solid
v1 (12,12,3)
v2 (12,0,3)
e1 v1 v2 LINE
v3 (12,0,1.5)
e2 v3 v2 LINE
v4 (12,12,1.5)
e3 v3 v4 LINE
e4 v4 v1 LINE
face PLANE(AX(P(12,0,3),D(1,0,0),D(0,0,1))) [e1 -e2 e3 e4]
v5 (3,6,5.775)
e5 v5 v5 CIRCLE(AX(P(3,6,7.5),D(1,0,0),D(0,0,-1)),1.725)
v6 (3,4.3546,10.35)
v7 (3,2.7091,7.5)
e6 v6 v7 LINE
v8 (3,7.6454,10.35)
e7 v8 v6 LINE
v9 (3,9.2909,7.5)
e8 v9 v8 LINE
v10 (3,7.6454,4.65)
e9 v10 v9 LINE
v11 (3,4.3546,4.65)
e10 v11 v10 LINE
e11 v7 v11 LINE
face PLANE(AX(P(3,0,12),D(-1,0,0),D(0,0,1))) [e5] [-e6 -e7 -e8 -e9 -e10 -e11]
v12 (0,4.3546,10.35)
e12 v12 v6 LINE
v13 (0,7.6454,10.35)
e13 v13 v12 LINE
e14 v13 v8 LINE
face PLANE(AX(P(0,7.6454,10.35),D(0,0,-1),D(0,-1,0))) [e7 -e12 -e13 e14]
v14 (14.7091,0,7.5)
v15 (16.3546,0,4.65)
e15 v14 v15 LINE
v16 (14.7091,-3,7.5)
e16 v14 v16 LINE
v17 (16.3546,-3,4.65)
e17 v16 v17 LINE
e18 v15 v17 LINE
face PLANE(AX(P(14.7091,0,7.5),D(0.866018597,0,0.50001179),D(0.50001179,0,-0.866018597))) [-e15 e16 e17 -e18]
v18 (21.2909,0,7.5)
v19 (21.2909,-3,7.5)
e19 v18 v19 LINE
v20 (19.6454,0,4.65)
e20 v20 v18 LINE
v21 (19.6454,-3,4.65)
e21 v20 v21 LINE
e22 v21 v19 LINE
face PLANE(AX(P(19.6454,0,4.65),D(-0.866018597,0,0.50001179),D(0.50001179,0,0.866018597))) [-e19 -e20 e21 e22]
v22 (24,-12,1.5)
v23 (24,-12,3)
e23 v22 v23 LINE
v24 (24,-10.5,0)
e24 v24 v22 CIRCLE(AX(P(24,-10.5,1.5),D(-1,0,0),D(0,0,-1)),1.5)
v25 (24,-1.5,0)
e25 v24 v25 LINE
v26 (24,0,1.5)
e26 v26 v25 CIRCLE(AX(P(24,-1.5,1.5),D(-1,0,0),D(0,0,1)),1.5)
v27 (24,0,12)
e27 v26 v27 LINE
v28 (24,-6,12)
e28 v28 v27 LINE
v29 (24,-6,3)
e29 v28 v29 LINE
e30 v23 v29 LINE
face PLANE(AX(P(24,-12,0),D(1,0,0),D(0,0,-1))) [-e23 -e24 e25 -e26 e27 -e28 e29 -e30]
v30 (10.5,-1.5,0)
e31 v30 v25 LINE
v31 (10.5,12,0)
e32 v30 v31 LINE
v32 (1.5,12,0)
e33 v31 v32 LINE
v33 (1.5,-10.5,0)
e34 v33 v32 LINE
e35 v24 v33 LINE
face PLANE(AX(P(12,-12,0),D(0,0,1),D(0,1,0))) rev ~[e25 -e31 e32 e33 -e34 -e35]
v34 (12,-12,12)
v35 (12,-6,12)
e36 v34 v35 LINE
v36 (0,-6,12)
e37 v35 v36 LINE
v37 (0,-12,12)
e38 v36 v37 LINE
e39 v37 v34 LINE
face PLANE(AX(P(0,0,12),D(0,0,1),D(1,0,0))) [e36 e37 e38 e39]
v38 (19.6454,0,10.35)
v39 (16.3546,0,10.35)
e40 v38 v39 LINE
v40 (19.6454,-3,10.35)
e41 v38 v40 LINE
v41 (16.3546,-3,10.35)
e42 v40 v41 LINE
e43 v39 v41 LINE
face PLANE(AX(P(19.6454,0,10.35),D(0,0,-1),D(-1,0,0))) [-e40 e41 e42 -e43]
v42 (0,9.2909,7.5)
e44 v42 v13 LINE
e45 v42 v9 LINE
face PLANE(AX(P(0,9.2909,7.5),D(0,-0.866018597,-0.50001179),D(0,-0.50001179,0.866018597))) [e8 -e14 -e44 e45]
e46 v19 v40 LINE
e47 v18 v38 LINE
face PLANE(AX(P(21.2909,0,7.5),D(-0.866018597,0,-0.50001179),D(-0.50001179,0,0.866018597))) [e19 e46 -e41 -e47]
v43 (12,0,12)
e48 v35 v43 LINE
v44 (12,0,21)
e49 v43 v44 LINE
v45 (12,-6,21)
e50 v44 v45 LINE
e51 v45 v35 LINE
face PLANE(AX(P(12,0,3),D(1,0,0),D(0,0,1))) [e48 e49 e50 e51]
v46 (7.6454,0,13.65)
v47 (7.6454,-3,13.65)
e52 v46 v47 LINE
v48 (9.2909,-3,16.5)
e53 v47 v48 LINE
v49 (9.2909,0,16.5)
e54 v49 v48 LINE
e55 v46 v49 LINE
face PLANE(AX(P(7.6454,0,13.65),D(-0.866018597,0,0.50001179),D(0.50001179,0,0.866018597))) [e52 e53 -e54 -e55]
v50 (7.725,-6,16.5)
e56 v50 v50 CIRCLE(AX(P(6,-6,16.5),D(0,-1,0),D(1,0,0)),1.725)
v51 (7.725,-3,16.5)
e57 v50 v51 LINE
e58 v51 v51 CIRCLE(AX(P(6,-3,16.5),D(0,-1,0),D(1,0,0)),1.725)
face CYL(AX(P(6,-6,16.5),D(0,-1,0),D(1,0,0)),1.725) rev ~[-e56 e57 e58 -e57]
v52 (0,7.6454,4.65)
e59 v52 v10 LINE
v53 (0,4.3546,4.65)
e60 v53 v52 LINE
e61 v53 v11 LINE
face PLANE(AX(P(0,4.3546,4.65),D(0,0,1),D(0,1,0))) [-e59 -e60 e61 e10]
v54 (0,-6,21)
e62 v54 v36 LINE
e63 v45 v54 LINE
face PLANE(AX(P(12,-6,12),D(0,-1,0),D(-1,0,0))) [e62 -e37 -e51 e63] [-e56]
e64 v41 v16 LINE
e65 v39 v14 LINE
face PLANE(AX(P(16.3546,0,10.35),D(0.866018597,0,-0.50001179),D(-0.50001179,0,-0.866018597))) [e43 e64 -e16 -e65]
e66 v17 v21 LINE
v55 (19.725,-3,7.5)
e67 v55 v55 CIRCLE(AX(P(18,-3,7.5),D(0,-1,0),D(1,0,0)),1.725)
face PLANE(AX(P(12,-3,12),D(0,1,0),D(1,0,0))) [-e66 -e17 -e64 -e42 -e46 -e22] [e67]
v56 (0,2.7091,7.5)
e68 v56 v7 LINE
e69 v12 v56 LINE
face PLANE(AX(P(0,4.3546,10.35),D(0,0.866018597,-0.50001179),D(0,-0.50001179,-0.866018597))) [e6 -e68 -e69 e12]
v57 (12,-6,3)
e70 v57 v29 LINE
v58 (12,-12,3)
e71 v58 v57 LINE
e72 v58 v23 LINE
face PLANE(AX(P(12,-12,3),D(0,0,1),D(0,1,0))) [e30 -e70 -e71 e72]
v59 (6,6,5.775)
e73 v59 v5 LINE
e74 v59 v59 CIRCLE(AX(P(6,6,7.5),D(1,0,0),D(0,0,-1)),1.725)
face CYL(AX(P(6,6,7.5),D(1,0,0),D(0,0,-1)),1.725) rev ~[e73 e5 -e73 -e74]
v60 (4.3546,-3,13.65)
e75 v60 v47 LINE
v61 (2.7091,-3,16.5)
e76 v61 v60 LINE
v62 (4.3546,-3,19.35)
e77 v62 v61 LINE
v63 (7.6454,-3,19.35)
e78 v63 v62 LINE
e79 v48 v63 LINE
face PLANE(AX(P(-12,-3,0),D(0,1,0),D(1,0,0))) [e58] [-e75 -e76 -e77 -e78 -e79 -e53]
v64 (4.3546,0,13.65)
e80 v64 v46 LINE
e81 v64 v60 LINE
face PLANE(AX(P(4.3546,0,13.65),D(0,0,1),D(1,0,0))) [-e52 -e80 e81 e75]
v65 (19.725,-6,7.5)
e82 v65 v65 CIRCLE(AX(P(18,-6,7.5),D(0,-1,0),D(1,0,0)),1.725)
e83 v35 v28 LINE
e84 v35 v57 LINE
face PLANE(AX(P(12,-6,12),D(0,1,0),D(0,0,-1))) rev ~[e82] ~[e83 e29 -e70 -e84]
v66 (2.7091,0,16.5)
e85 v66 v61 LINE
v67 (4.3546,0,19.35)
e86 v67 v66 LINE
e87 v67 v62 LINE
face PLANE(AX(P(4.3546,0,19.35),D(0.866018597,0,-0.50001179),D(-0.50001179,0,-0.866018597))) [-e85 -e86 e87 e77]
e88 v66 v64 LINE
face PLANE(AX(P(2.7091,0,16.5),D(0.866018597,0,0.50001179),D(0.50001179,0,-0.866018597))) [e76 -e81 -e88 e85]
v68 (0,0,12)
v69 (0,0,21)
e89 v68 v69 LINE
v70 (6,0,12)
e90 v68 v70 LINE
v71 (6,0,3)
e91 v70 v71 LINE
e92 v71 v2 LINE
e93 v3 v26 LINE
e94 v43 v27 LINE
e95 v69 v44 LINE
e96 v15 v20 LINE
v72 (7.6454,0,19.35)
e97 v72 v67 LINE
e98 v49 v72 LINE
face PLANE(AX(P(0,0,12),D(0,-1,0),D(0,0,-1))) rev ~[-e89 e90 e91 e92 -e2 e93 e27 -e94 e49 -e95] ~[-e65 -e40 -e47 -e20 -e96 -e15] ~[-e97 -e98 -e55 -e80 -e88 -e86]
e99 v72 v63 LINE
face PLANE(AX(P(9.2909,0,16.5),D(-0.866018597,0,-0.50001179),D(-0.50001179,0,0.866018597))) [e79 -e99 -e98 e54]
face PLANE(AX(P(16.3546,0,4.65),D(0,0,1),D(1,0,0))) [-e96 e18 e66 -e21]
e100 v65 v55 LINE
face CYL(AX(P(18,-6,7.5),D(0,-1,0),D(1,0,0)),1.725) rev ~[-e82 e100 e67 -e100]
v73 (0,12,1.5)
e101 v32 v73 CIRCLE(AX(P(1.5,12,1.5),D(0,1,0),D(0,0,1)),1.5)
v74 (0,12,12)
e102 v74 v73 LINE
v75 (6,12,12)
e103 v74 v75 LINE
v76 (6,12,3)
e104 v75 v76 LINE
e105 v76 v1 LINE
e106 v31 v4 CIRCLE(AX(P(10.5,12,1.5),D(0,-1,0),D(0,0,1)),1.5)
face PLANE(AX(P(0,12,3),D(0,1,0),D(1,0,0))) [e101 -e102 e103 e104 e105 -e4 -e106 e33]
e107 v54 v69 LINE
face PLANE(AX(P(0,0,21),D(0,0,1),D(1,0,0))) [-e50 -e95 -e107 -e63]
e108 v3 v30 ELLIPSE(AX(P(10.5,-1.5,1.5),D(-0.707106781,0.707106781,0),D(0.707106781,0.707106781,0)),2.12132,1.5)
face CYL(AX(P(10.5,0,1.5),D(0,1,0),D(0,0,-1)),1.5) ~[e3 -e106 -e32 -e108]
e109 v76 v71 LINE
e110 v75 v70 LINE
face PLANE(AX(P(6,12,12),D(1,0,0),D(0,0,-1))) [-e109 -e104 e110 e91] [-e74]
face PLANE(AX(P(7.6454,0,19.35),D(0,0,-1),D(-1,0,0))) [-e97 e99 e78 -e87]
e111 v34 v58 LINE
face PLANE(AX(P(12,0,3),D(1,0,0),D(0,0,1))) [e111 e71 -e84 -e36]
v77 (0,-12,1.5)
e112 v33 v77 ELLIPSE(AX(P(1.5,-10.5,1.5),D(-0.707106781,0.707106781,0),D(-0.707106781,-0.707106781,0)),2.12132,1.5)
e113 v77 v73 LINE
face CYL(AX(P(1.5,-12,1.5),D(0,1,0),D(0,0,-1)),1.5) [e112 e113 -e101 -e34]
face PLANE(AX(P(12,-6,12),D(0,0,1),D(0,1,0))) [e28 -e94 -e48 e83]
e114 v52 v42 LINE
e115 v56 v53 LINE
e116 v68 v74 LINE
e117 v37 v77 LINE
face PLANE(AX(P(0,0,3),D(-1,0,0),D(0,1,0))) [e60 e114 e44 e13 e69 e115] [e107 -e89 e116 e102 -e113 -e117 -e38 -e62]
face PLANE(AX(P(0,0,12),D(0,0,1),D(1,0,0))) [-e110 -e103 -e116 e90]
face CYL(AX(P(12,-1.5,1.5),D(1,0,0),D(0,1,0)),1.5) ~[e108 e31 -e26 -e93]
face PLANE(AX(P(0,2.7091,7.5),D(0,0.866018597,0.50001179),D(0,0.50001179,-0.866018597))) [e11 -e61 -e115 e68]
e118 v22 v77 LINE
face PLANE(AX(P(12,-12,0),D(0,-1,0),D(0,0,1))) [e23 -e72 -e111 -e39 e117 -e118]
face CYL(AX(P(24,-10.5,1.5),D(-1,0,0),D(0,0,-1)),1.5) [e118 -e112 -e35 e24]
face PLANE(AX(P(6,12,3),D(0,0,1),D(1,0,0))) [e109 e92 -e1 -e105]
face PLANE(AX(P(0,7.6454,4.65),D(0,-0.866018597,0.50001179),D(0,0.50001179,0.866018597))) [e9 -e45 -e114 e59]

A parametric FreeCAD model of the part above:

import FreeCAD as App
import Part
import Sketcher
Q = App.Units.Quantity


def edges_at(feature, points):
    """Names of the edges that pass closest to the given points."""
    edges = feature.Shape.Edges
    near = lambda p: min(range(len(edges)), key=lambda i: edges[i].distToShape(Part.Vertex(*p))[0])
    return sorted({f"Edge{near(p) + 1}" for p in points})


def add_polygon(sketch, points):
    """Adds a closed chain of lines whose ends are joined by coincident constraints."""
    first, n = sketch.GeometryCount, len(points)
    for a, b in zip(points, points[1:] + points[:1]):
        sketch.addGeometry(Part.LineSegment(App.Vector(*a, 0), App.Vector(*b, 0)), False)
    for i in range(n):
        sketch.addConstraint(Sketcher.Constraint("Coincident", first + i, 2, first + (i + 1) % n, 1))

doc = App.newDocument("Part")
body = doc.addObject("PartDesign::Body", "Body")

sketch1 = doc.addObject("Sketcher::SketchObject", "Sketch")
body.addObject(sketch1)
sketch1.AttachmentSupport = (doc.XY_Plane, [""])
sketch1.MapMode = "FlatFace"
add_polygon(sketch1, [(0, 12), (0, 0), (-12, 0), (-12, -12), (0, -12), (0, -24), (12, -24), (12, -12), (24, -12), (24, 0), (12, 0), (12, 12)])
sketch1.addConstraint([
    Sketcher.Constraint("Vertical", 0),
    Sketcher.Constraint("Horizontal", 1),
    Sketcher.Constraint("Vertical", 2),
    Sketcher.Constraint("Horizontal", 3),
    Sketcher.Constraint("Vertical", 4),
    Sketcher.Constraint("Horizontal", 5),
    Sketcher.Constraint("Vertical", 6),
    Sketcher.Constraint("Horizontal", 7),
    Sketcher.Constraint("Vertical", 8),
    Sketcher.Constraint("Horizontal", 9),
    Sketcher.Constraint("Vertical", 10),
    Sketcher.Constraint("Horizontal", 11),
    Sketcher.Constraint("Coincident", 0, 2, -1, 1),
    Sketcher.Constraint("Symmetric", 1, 2, 9, 2, -1, 1),
    Sketcher.Constraint("Symmetric", 3, 2, 11, 2, -1, 1),
    Sketcher.Constraint("Symmetric", 2, 2, 6, 2, -2),
    Sketcher.Constraint("Equal", 5, 7),
    Sketcher.Constraint("Equal", 11, 0),
    Sketcher.Constraint("Equal", 2, 4),
    Sketcher.Constraint("DistanceX", 1, 2, 1, 1, 12.0),
])
pad1 = doc.addObject("PartDesign::Pad", "Pad")
body.addObject(pad1)
pad1.Profile = sketch1
pad1.Length = 3

sketch2 = doc.addObject("Sketcher::SketchObject", "Sketch001")
body.addObject(sketch2)
sketch2.AttachmentSupport = (doc.XY_Plane, [""])
sketch2.MapMode = "FlatFace"
sketch2.AttachmentOffset = App.Placement(App.Vector(0, 0, 3), App.Rotation())
add_polygon(sketch2, [(0, -6), (-12, -6), (-12, -12), (0, -12), (0, -24), (6, -24), (6, -12), (24, -12), (24, -6), (12, -6), (12, 0), (6, 0), (6, 12), (0, 12)])
sketch2.addConstraint([
    Sketcher.Constraint("Horizontal", 0),
    Sketcher.Constraint("Vertical", 1),
    Sketcher.Constraint("Horizontal", 2),
    Sketcher.Constraint("Vertical", 3),
    Sketcher.Constraint("Horizontal", 4),
    Sketcher.Constraint("Vertical", 5),
    Sketcher.Constraint("Horizontal", 6),
    Sketcher.Constraint("Vertical", 7),
    Sketcher.Constraint("Horizontal", 8),
    Sketcher.Constraint("Vertical", 9),
    Sketcher.Constraint("Horizontal", 10),
    Sketcher.Constraint("Vertical", 11),
    Sketcher.Constraint("Horizontal", 12),
    Sketcher.Constraint("Vertical", 13),
    Sketcher.Constraint("Symmetric", 2, 2, 12, 2, -1, 1),
    Sketcher.Constraint("Symmetric", 0, 2, 8, 2, -2),
    Sketcher.Constraint("Symmetric", 5, 2, 11, 2, -1),
    Sketcher.Constraint("PointOnObject", 2, 2, -2),
    Sketcher.Constraint("PointOnObject", 9, 2, -1),
    Sketcher.Constraint("Equal", 2, 8),
    Sketcher.Constraint("Equal", 4, 10),
    Sketcher.Constraint("Equal", 12, 1),
    Sketcher.Constraint("Equal", 8, 3),
    Sketcher.Constraint("Equal", 7, 9),
    Sketcher.Constraint("DistanceX", 0, 2, 0, 1, 12.0),
])
pad2 = doc.addObject("PartDesign::Pad", "Pad001")
body.addObject(pad2)
pad2.Profile = sketch2
pad2.Length = 9

sketch3 = doc.addObject("Sketcher::SketchObject", "Sketch002")
body.addObject(sketch3)
sketch3.AttachmentSupport = (doc.XY_Plane, [""])
sketch3.MapMode = "FlatFace"
sketch3.AttachmentOffset = App.Placement(App.Vector(0, 0, 12), App.Rotation())
add_polygon(sketch3, [(12, -6), (0, -6), (0, -12), (12, -12)])
sketch3.addConstraint([
    Sketcher.Constraint("Horizontal", 0),
    Sketcher.Constraint("Vertical", 1),
    Sketcher.Constraint("Horizontal", 2),
    Sketcher.Constraint("Vertical", 3),
    Sketcher.Constraint("PointOnObject", 0, 2, -2),
    Sketcher.Constraint("DistanceX", 0, 2, 0, 1, 12.0),
    Sketcher.Constraint("DistanceY", 1, 2, 1, 1, 6.0),
    Sketcher.Constraint("DistanceY", 0, 2, -1, 1, 6.0),
])
pad3 = doc.addObject("PartDesign::Pad", "Pad002")
body.addObject(pad3)
pad3.Profile = sketch3
pad3.Length = 9

sketch4 = doc.addObject("Sketcher::SketchObject", "Sketch003")
body.addObject(sketch4)
sketch4.AttachmentSupport = (doc.XZ_Plane, [""])
sketch4.MapMode = "FlatFace"
sketch4.AttachmentOffset = App.Placement(App.Vector(0, 0, 6), App.Rotation())
sketch4.addGeometry([
    Part.Circle(App.Vector(-6, 7.5, 0), App.Vector(0, 0, 1), 1.7),
    Part.Circle(App.Vector(6, 16.5, 0), App.Vector(0, 0, 1), 1.7),
    Part.Circle(App.Vector(18, 7.5, 0), App.Vector(0, 0, 1), 1.7),
], False)
sketch4.addConstraint([
    Sketcher.Constraint("Equal", 0, 1),
    Sketcher.Constraint("Equal", 1, 2),
    Sketcher.Constraint("Horizontal", 0, 3, 2, 3),
    Sketcher.Constraint("Diameter", 0, 3.45),
    Sketcher.Constraint("DistanceX", 0, 3, -1, 1, 6.0),
    Sketcher.Constraint("DistanceX", -1, 1, 1, 3, 6.0),
    Sketcher.Constraint("DistanceX", -1, 1, 2, 3, 18.0),
    Sketcher.Constraint("DistanceY", 0, 3, 1, 3, 9.0),
    Sketcher.Constraint("DistanceY", -1, 1, 0, 3, 7.5),
])
pocket1 = doc.addObject("PartDesign::Pocket", "Pocket")
body.addObject(pocket1)
pocket1.Profile = sketch4
pocket1.Length = 3
pocket1.Reversed = True

sketch5 = doc.addObject("Sketcher::SketchObject", "Sketch004")
body.addObject(sketch5)
sketch5.AttachmentSupport = (doc.XZ_Plane, [""])
sketch5.MapMode = "FlatFace"
sketch5.AttachmentOffset = App.Placement(App.Vector(0, 0, 12), App.Rotation())
add_polygon(sketch5, [(-2.7, 7.5), (-4.4, 10.3), (-7.6, 10.3), (-9.3, 7.5), (-7.6, 4.7), (-4.4, 4.7)])
add_polygon(sketch5, [(21.3, 7.5), (19.6, 10.3), (16.4, 10.3), (14.7, 7.5), (16.4, 4.7), (19.6, 4.7)])
add_polygon(sketch5, [(9.3, 16.5), (7.6, 19.4), (4.4, 19.4), (2.7, 16.5), (4.4, 13.7), (7.6, 13.7)])
sketch5.addConstraint([
    Sketcher.Constraint("Horizontal", 1),
    Sketcher.Constraint("Horizontal", 4),
    Sketcher.Constraint("Horizontal", 7),
    Sketcher.Constraint("Horizontal", 10),
    Sketcher.Constraint("Horizontal", 13),
    Sketcher.Constraint("Horizontal", 16),
    Sketcher.Constraint("Parallel", 0, 3),
    Sketcher.Constraint("Parallel", 2, 5),
    Sketcher.Constraint("Parallel", 3, 6),
    Sketcher.Constraint("Parallel", 5, 8),
    Sketcher.Constraint("Parallel", 6, 9),
    Sketcher.Constraint("Parallel", 8, 11),
    Sketcher.Constraint("Parallel", 9, 12),
    Sketcher.Constraint("Parallel", 11, 14),
    Sketcher.Constraint("Parallel", 12, 15),
    Sketcher.Constraint("Parallel", 14, 17),
    Sketcher.Constraint("Horizontal", 2, 2, 5, 2),
    Sketcher.Constraint("Horizontal", 1, 2, 6, 2),
    Sketcher.Constraint("Horizontal", 5, 2, 8, 2),
    Sketcher.Constraint("Horizontal", 4, 2, 9, 2),
    Sketcher.Constraint("Horizontal", 8, 2, 11, 2),
    Sketcher.Constraint("Horizontal", 14, 2, 17, 2),
    Sketcher.Constraint("Vertical", 1, 2, 3, 2),
    Sketcher.Constraint("Vertical", 0, 2, 4, 2),
    Sketcher.Constraint("Vertical", 13, 2, 15, 2),
    Sketcher.Constraint("Equal", 4, 7),
    Sketcher.Constraint("Equal", 10, 13),
    Sketcher.Constraint("Equal", 11, 12),
    Sketcher.Constraint("Angle", 0, Q("120.0008 deg")),
    Sketcher.Constraint("DistanceY", 2, 2, 1, 2, 2.85),
    Sketcher.Constraint("DistanceX", 0, 2, 6, 2, 24.0),
    Sketcher.Constraint("DistanceY", 7, 2, 12, 2, 9.0),
    Sketcher.Constraint("DistanceX", 12, 2, 6, 2, 12.0),
    Sketcher.Constraint("DistanceY", -1, 1, 2, 2, 7.5),
    Sketcher.Constraint("DistanceX", 1, 2, 1, 1, 3.2908),
    Sketcher.Constraint("DistanceX", 2, 2, -1, 1, 9.291),
])
pocket2 = doc.addObject("PartDesign::Pocket", "Pocket001")
body.addObject(pocket2)
pocket2.Profile = sketch5
pocket2.Length = 3

sketch6 = doc.addObject("Sketcher::SketchObject", "Sketch005")
body.addObject(sketch6)
sketch6.AttachmentSupport = (doc.YZ_Plane, [""])
sketch6.MapMode = "FlatFace"
sketch6.AttachmentOffset = App.Placement(App.Vector(0, 0, 6), App.Rotation())
sketch6.addGeometry([
    Part.Circle(App.Vector(6, 7.5, 0), App.Vector(0, 0, 1), 1.7),
    Part.Circle(App.Vector(-18, 7.5, 0), App.Vector(0, 0, 1), 1.7),
], False)
sketch6.addConstraint([
    Sketcher.Constraint("Equal", 0, 1),
    Sketcher.Constraint("Horizontal", 0, 3, 1, 3),
    Sketcher.Constraint("Diameter", 0, 3.45),
    Sketcher.Constraint("DistanceX", -1, 1, 0, 3, 6.0),
    Sketcher.Constraint("DistanceX", 1, 3, -1, 1, 18.0),
    Sketcher.Constraint("DistanceY", -1, 1, 0, 3, 7.5),
])
pocket3 = doc.addObject("PartDesign::Pocket", "Pocket002")
body.addObject(pocket3)
pocket3.Profile = sketch6
pocket3.Length = 3

sketch7 = doc.addObject("Sketcher::SketchObject", "Sketch006")
body.addObject(sketch7)
sketch7.AttachmentSupport = (doc.YZ_Plane, [""])
sketch7.MapMode = "FlatFace"
add_polygon(sketch7, [(9.3, 7.5), (7.6, 4.7), (4.4, 4.7), (2.7, 7.5), (4.4, 10.3), (7.6, 10.3)])
add_polygon(sketch7, [(-14.7, 7.5), (-16.4, 4.7), (-19.6, 4.7), (-21.3, 7.5), (-19.6, 10.3), (-16.4, 10.3)])
sketch7.addConstraint([
    Sketcher.Constraint("Horizontal", 1),
    Sketcher.Constraint("Horizontal", 4),
    Sketcher.Constraint("Horizontal", 7),
    Sketcher.Constraint("Horizontal", 10),
    Sketcher.Constraint("Parallel", 0, 3),
    Sketcher.Constraint("Parallel", 2, 5),
    Sketcher.Constraint("Parallel", 3, 6),
    Sketcher.Constraint("Parallel", 5, 8),
    Sketcher.Constraint("Parallel", 6, 9),
    Sketcher.Constraint("Parallel", 8, 11),
    Sketcher.Constraint("Horizontal", 2, 2, 5, 2),
    Sketcher.Constraint("Horizontal", 1, 2, 6, 2),
    Sketcher.Constraint("Horizontal", 5, 2, 8, 2),
    Sketcher.Constraint("Horizontal", 4, 2, 9, 2),
    Sketcher.Constraint("Horizontal", 8, 2, 11, 2),
    Sketcher.Constraint("Vertical", 1, 2, 3, 2),
    Sketcher.Constraint("Vertical", 0, 2, 4, 2),
    Sketcher.Constraint("Equal", 4, 7),
    Sketcher.Constraint("Angle", 0, Q("-120.0008 deg")),
    Sketcher.Constraint("DistanceY", 1, 2, 2, 2, 2.85),
    Sketcher.Constraint("DistanceX", 6, 2, 0, 2, 24.0),
    Sketcher.Constraint("DistanceY", -1, 1, 2, 2, 7.5),
    Sketcher.Constraint("DistanceX", 1, 2, 1, 1, 3.2908),
    Sketcher.Constraint("DistanceX", -1, 1, 2, 2, 2.709),
])
pocket4 = doc.addObject("PartDesign::Pocket", "Pocket003")
body.addObject(pocket4)
pocket4.Profile = sketch7
pocket4.Length = 3
pocket4.Reversed = True

sketch8 = doc.addObject("Sketcher::SketchObject", "Sketch007")
body.addObject(sketch8)
sketch8.AttachmentSupport = (doc.XY_Plane, [""])
sketch8.MapMode = "FlatFace"
add_polygon(sketch8, [(0, -12), (12, -12), (12, -24), (0, -24)])
add_polygon(sketch8, [(24, 0), (24, -12), (12, -12), (12, 0)])
sketch8.addConstraint([
    Sketcher.Constraint("Horizontal", 0),
    Sketcher.Constraint("Vertical", 1),
    Sketcher.Constraint("Horizontal", 2),
    Sketcher.Constraint("Vertical", 3),
    Sketcher.Constraint("Vertical", 4),
    Sketcher.Constraint("Horizontal", 5),
    Sketcher.Constraint("Vertical", 6),
    Sketcher.Constraint("Horizontal", 7),
    Sketcher.Constraint("Coincident", 5, 2, 0, 2),
    Sketcher.Constraint("PointOnObject", 2, 2, -2),
    Sketcher.Constraint("PointOnObject", 6, 2, -1),
    Sketcher.Constraint("Equal", 2, 5),
    Sketcher.Constraint("Equal", 7, 1),
    Sketcher.Constraint("Equal", 3, 4),
    Sketcher.Constraint("DistanceX", 0, 1, 0, 2, 12.0),
])
pocket5 = doc.addObject("PartDesign::Pocket", "Pocket004")
body.addObject(pocket5)
pocket5.Profile = sketch8
pocket5.Type = "ThroughAll"
pocket5.Reversed = True

sketch9 = doc.addObject("Sketcher::SketchObject", "Sketch008")
body.addObject(sketch9)
sketch9.AttachmentSupport = (doc.XZ_Plane, [""])
sketch9.MapMode = "FlatFace"
sketch9.AttachmentOffset = App.Placement(App.Vector(0, 0, -12), App.Rotation())
add_polygon(sketch9, [(0, 12), (6, 12), (6, 3), (0, 3)])
sketch9.addConstraint([
    Sketcher.Constraint("Horizontal", 0),
    Sketcher.Constraint("Vertical", 1),
    Sketcher.Constraint("Horizontal", 2),
    Sketcher.Constraint("Vertical", 3),
    Sketcher.Constraint("PointOnObject", 2, 2, -2),
    Sketcher.Constraint("DistanceX", 0, 1, 0, 2, 6.0),
    Sketcher.Constraint("DistanceY", 1, 2, 1, 1, 9.0),
    Sketcher.Constraint("DistanceY", -1, 1, 0, 2, 12.0),
])
pocket6 = doc.addObject("PartDesign::Pocket", "Pocket005")
body.addObject(pocket6)
pocket6.Profile = sketch9
pocket6.Length = 12
pocket6.Reversed = True

sketch10 = doc.addObject("Sketcher::SketchObject", "Sketch009")
body.addObject(sketch10)
sketch10.AttachmentSupport = (doc.XZ_Plane, [""])
sketch10.MapMode = "FlatFace"
add_polygon(sketch10, [(12, 12), (12, 3), (6, 3), (6, 12)])
sketch10.addConstraint([
    Sketcher.Constraint("Vertical", 0),
    Sketcher.Constraint("Horizontal", 1),
    Sketcher.Constraint("Vertical", 2),
    Sketcher.Constraint("Horizontal", 3),
    Sketcher.Constraint("DistanceX", 1, 2, 1, 1, 6.0),
    Sketcher.Constraint("DistanceY", 0, 2, 0, 1, 9.0),
    Sketcher.Constraint("DistanceX", -1, 1, 0, 2, 12.0),
    Sketcher.Constraint("DistanceY", -1, 1, 0, 2, 3.0),
])
pad4 = doc.addObject("PartDesign::Pad", "Pad003")
body.addObject(pad4)
pad4.Profile = sketch10
pad4.Length = 12
pad4.Reversed = True

sketch11 = doc.addObject("Sketcher::SketchObject", "Sketch010")
body.addObject(sketch11)
sketch11.AttachmentSupport = (doc.YZ_Plane, [""])
sketch11.MapMode = "FlatFace"
sketch11.AttachmentOffset = App.Placement(App.Vector(0, 0, 6), App.Rotation())
sketch11.addGeometry(Part.Circle(App.Vector(6, 7.5, 0), App.Vector(0, 0, 1), 1.6), False)
sketch11.addConstraint([
    Sketcher.Constraint("Diameter", 0, 3.15),
    Sketcher.Constraint("DistanceX", -1, 1, 0, 3, 6.0),
    Sketcher.Constraint("DistanceY", -1, 1, 0, 3, 7.5),
])
pocket7 = doc.addObject("PartDesign::Pocket", "Pocket006")
body.addObject(pocket7)
pocket7.Profile = sketch11
pocket7.Length = 3
pocket7.Reversed = True

sketch12 = doc.addObject("Sketcher::SketchObject", "Sketch011")
body.addObject(sketch12)
sketch12.AttachmentSupport = (doc.YZ_Plane, [""])
sketch12.MapMode = "FlatFace"
sketch12.AttachmentOffset = App.Placement(App.Vector(0, 0, 12), App.Rotation())
add_polygon(sketch12, [(9.3, 7.5), (7.6, 10.3), (4.4, 10.3), (2.7, 7.5), (4.4, 4.7), (7.6, 4.7)])
sketch12.addConstraint([
    Sketcher.Constraint("Horizontal", 1),
    Sketcher.Constraint("Horizontal", 4),
    Sketcher.Constraint("Parallel", 0, 3),
    Sketcher.Constraint("Parallel", 2, 5),
    Sketcher.Constraint("Horizontal", 2, 2, 5, 2),
    Sketcher.Constraint("Vertical", 1, 2, 3, 2),
    Sketcher.Constraint("Vertical", 0, 2, 4, 2),
    Sketcher.Constraint("DistanceY", 3, 2, 1, 2, 5.7),
    Sketcher.Constraint("Angle", 0, Q("120.0008 deg")),
    Sketcher.Constraint("DistanceY", -1, 1, 2, 2, 7.5),
    Sketcher.Constraint("DistanceX", 1, 2, 1, 1, 3.2908),
    Sketcher.Constraint("DistanceX", -1, 1, 2, 2, 2.709),
])
pocket8 = doc.addObject("PartDesign::Pocket", "Pocket007")
body.addObject(pocket8)
pocket8.Profile = sketch12
pocket8.Length = 3

sketch13 = doc.addObject("Sketcher::SketchObject", "Sketch012")
body.addObject(sketch13)
sketch13.AttachmentSupport = (doc.YZ_Plane, [""])
sketch13.MapMode = "FlatFace"
add_polygon(sketch13, [(-6, 12), (0, 12), (0, 3), (-6, 3)])
sketch13.addConstraint([
    Sketcher.Constraint("Horizontal", 0),
    Sketcher.Constraint("Vertical", 1),
    Sketcher.Constraint("Horizontal", 2),
    Sketcher.Constraint("Vertical", 3),
    Sketcher.Constraint("PointOnObject", 0, 2, -2),
    Sketcher.Constraint("DistanceX", 0, 1, 0, 2, 6.0),
    Sketcher.Constraint("DistanceY", 1, 2, 1, 1, 9.0),
    Sketcher.Constraint("DistanceY", -1, 1, 0, 2, 12.0),
])
pad5 = doc.addObject("PartDesign::Pad", "Pad004")
body.addObject(pad5)
pad5.Profile = sketch13
pad5.Length = 12
pad5.Reversed = True

sketch14 = doc.addObject("Sketcher::SketchObject", "Sketch013")
body.addObject(sketch14)
sketch14.AttachmentSupport = (doc.YZ_Plane, [""])
sketch14.MapMode = "FlatFace"
sketch14.AttachmentOffset = App.Placement(App.Vector(0, 0, -12), App.Rotation())
add_polygon(sketch14, [(-12, 3), (-12, 12), (-6, 12), (-6, 3)])
sketch14.addConstraint([
    Sketcher.Constraint("Vertical", 0),
    Sketcher.Constraint("Horizontal", 1),
    Sketcher.Constraint("Vertical", 2),
    Sketcher.Constraint("Horizontal", 3),
    Sketcher.Constraint("DistanceX", 1, 1, 1, 2, 6.0),
    Sketcher.Constraint("DistanceY", 0, 1, 0, 2, 9.0),
    Sketcher.Constraint("DistanceX", 1, 2, -1, 1, 6.0),
    Sketcher.Constraint("DistanceY", -1, 1, 0, 2, 12.0),
])
pocket9 = doc.addObject("PartDesign::Pocket", "Pocket008")
body.addObject(pocket9)
pocket9.Profile = sketch14
pocket9.Length = 12
pocket9.Reversed = True

sketch15 = doc.addObject("Sketcher::SketchObject", "Sketch014")
body.addObject(sketch15)
sketch15.AttachmentSupport = (doc.XZ_Plane, [""])
sketch15.MapMode = "FlatFace"
sketch15.AttachmentOffset = App.Placement(App.Vector(0, 0, 6), App.Rotation())
sketch15.addGeometry(Part.Circle(App.Vector(-6, 7.5, 0), App.Vector(0, 0, 1), 1.7), False)
sketch15.addConstraint([
    Sketcher.Constraint("Diameter", 0, 3.45),
    Sketcher.Constraint("DistanceX", 0, 3, -1, 1, 6.0),
    Sketcher.Constraint("DistanceY", -1, 1, 0, 3, 7.5),
])
pocket10 = doc.addObject("PartDesign::Pocket", "Pocket009")
body.addObject(pocket10)
pocket10.Profile = sketch15
pocket10.Length = 3

sketch16 = doc.addObject("Sketcher::SketchObject", "Sketch015")
body.addObject(sketch16)
sketch16.AttachmentSupport = (doc.XZ_Plane, [""])
sketch16.MapMode = "FlatFace"
add_polygon(sketch16, [(-9.3, 7.5), (-7.6, 10.3), (-4.4, 10.3), (-2.7, 7.5), (-4.4, 4.7), (-7.6, 4.7)])
sketch16.addConstraint([
    Sketcher.Constraint("Horizontal", 1),
    Sketcher.Constraint("Horizontal", 4),
    Sketcher.Constraint("Parallel", 0, 3),
    Sketcher.Constraint("Parallel", 2, 5),
    Sketcher.Constraint("Horizontal", 2, 2, 5, 2),
    Sketcher.Constraint("Vertical", 1, 2, 3, 2),
    Sketcher.Constraint("Vertical", 0, 2, 4, 2),
    Sketcher.Constraint("DistanceY", 3, 2, 1, 2, 5.7),
    Sketcher.Constraint("Angle", 0, Q("59.9992 deg")),
    Sketcher.Constraint("DistanceY", -1, 1, 2, 2, 7.5),
    Sketcher.Constraint("DistanceX", 1, 1, 1, 2, 3.2908),
    Sketcher.Constraint("DistanceX", 2, 2, -1, 1, 2.709),
])
pocket11 = doc.addObject("PartDesign::Pocket", "Pocket010")
body.addObject(pocket11)
pocket11.Profile = sketch16
pocket11.Length = 3
pocket11.Reversed = True

sketch17 = doc.addObject("Sketcher::SketchObject", "Sketch016")
body.addObject(sketch17)
sketch17.AttachmentSupport = (doc.XY_Plane, [""])
sketch17.MapMode = "FlatFace"
sketch17.AttachmentOffset = App.Placement(App.Vector(0, 0, 12), App.Rotation())
add_polygon(sketch17, [(0, -6), (12, -6), (12, 0), (0, 0)])
sketch17.addConstraint([
    Sketcher.Constraint("Horizontal", 0),
    Sketcher.Constraint("Vertical", 1),
    Sketcher.Constraint("Horizontal", 2),
    Sketcher.Constraint("Vertical", 3),
    Sketcher.Constraint("Coincident", 2, 2, -1, 1),
    Sketcher.Constraint("DistanceX", 0, 1, 0, 2, 12.0),
    Sketcher.Constraint("DistanceY", 1, 1, 1, 2, 6.0),
])
pad6 = doc.addObject("PartDesign::Pad", "Pad005")
body.addObject(pad6)
pad6.Profile = sketch17
pad6.Length = 9

sketch18 = doc.addObject("Sketcher::SketchObject", "Sketch017")
body.addObject(sketch18)
sketch18.AttachmentSupport = (doc.XY_Plane, [""])
sketch18.MapMode = "FlatFace"
sketch18.AttachmentOffset = App.Placement(App.Vector(0, 0, 21), App.Rotation())
add_polygon(sketch18, [(0, -6), (0, -12), (12, -12), (12, -6)])
sketch18.addConstraint([
    Sketcher.Constraint("Vertical", 0),
    Sketcher.Constraint("Horizontal", 1),
    Sketcher.Constraint("Vertical", 2),
    Sketcher.Constraint("Horizontal", 3),
    Sketcher.Constraint("PointOnObject", 0, 2, -2),
    Sketcher.Constraint("DistanceX", 1, 1, 1, 2, 12.0),
    Sketcher.Constraint("DistanceY", 0, 2, 0, 1, 6.0),
    Sketcher.Constraint("DistanceY", 0, 2, -1, 1, 12.0),
])
pocket12 = doc.addObject("PartDesign::Pocket", "Pocket011")
body.addObject(pocket12)
pocket12.Profile = sketch18
pocket12.Length = 9

sketch19 = doc.addObject("Sketcher::SketchObject", "Sketch018")
body.addObject(sketch19)
sketch19.AttachmentSupport = (doc.XZ_Plane, [""])
sketch19.MapMode = "FlatFace"
sketch19.AttachmentOffset = App.Placement(App.Vector(0, 0, 6), App.Rotation())
sketch19.addGeometry(Part.Circle(App.Vector(6, 16.5, 0), App.Vector(0, 0, 1), 1.7), False)
sketch19.addConstraint([
    Sketcher.Constraint("Diameter", 0, 3.45),
    Sketcher.Constraint("DistanceX", -1, 1, 0, 3, 6.0),
    Sketcher.Constraint("DistanceY", -1, 1, 0, 3, 16.5),
])
pocket13 = doc.addObject("PartDesign::Pocket", "Pocket012")
body.addObject(pocket13)
pocket13.Profile = sketch19
pocket13.Length = 3

sketch20 = doc.addObject("Sketcher::SketchObject", "Sketch019")
body.addObject(sketch20)
sketch20.AttachmentSupport = (doc.XZ_Plane, [""])
sketch20.MapMode = "FlatFace"
add_polygon(sketch20, [(2.7, 16.5), (4.4, 19.4), (7.6, 19.4), (9.3, 16.5), (7.6, 13.7), (4.4, 13.7)])
sketch20.addConstraint([
    Sketcher.Constraint("Horizontal", 1),
    Sketcher.Constraint("Horizontal", 4),
    Sketcher.Constraint("Parallel", 0, 3),
    Sketcher.Constraint("Parallel", 2, 5),
    Sketcher.Constraint("Horizontal", 2, 2, 5, 2),
    Sketcher.Constraint("Vertical", 1, 2, 3, 2),
    Sketcher.Constraint("Vertical", 0, 2, 4, 2),
    Sketcher.Constraint("DistanceY", 3, 2, 1, 2, 5.7),
    Sketcher.Constraint("Angle", 0, Q("59.9992 deg")),
    Sketcher.Constraint("DistanceY", -1, 1, 2, 2, 16.5),
    Sketcher.Constraint("DistanceX", 1, 1, 1, 2, 3.2908),
    Sketcher.Constraint("DistanceX", -1, 1, 2, 2, 9.291),
])
pocket14 = doc.addObject("PartDesign::Pocket", "Pocket013")
body.addObject(pocket14)
pocket14.Profile = sketch20
pocket14.Length = 3
pocket14.Reversed = True

sketch21 = doc.addObject("Sketcher::SketchObject", "Sketch020")
body.addObject(sketch21)
sketch21.AttachmentSupport = (doc.YZ_Plane, [""])
sketch21.MapMode = "FlatFace"
sketch21.AttachmentOffset = App.Placement(App.Vector(0, 0, 12), App.Rotation())
add_polygon(sketch21, [(0, 12), (-6, 12), (-6, 3), (-12, 3), (-12, 0), (0, 0)])
sketch21.addConstraint([
    Sketcher.Constraint("Horizontal", 0),
    Sketcher.Constraint("Vertical", 1),
    Sketcher.Constraint("Horizontal", 2),
    Sketcher.Constraint("Vertical", 3),
    Sketcher.Constraint("Horizontal", 4),
    Sketcher.Constraint("Vertical", 5),
    Sketcher.Constraint("Coincident", 4, 2, -1, 1),
    Sketcher.Constraint("Equal", 0, 2),
    Sketcher.Constraint("Equal", 4, 5),
    Sketcher.Constraint("DistanceX", 0, 2, 0, 1, 6.0),
    Sketcher.Constraint("DistanceY", 1, 2, 1, 1, 9.0),
])
pad7 = doc.addObject("PartDesign::Pad", "Pad006")
body.addObject(pad7)
pad7.Profile = sketch21
pad7.Length = 12

sketch22 = doc.addObject("Sketcher::SketchObject", "Sketch021")
body.addObject(sketch22)
sketch22.AttachmentSupport = (doc.XZ_Plane, [""])
sketch22.MapMode = "FlatFace"
sketch22.AttachmentOffset = App.Placement(App.Vector(0, 0, 6), App.Rotation())
sketch22.addGeometry(Part.Circle(App.Vector(18, 7.5, 0), App.Vector(0, 0, 1), 1.7), False)
sketch22.addConstraint([
    Sketcher.Constraint("Diameter", 0, 3.45),
    Sketcher.Constraint("DistanceX", -1, 1, 0, 3, 18.0),
    Sketcher.Constraint("DistanceY", -1, 1, 0, 3, 7.5),
])
pocket15 = doc.addObject("PartDesign::Pocket", "Pocket014")
body.addObject(pocket15)
pocket15.Profile = sketch22
pocket15.Length = 3

sketch23 = doc.addObject("Sketcher::SketchObject", "Sketch022")
body.addObject(sketch23)
sketch23.AttachmentSupport = (doc.XZ_Plane, [""])
sketch23.MapMode = "FlatFace"
add_polygon(sketch23, [(14.7, 7.5), (16.4, 10.3), (19.6, 10.3), (21.3, 7.5), (19.6, 4.7), (16.4, 4.7)])
sketch23.addConstraint([
    Sketcher.Constraint("Horizontal", 1),
    Sketcher.Constraint("Horizontal", 4),
    Sketcher.Constraint("Parallel", 0, 3),
    Sketcher.Constraint("Parallel", 2, 5),
    Sketcher.Constraint("Horizontal", 2, 2, 5, 2),
    Sketcher.Constraint("Vertical", 1, 2, 3, 2),
    Sketcher.Constraint("Vertical", 0, 2, 4, 2),
    Sketcher.Constraint("DistanceY", 3, 2, 1, 2, 5.7),
    Sketcher.Constraint("Angle", 0, Q("59.9992 deg")),
    Sketcher.Constraint("DistanceY", -1, 1, 2, 2, 7.5),
    Sketcher.Constraint("DistanceX", 1, 1, 1, 2, 3.2908),
    Sketcher.Constraint("DistanceX", -1, 1, 2, 2, 21.291),
])
pocket16 = doc.addObject("PartDesign::Pocket", "Pocket015")
body.addObject(pocket16)
pocket16.Profile = sketch23
pocket16.Length = 3
pocket16.Reversed = True

sketch24 = doc.addObject("Sketcher::SketchObject", "Sketch023")
body.addObject(sketch24)
sketch24.AttachmentSupport = (doc.XY_Plane, [""])
sketch24.MapMode = "FlatFace"
add_polygon(sketch24, [(0, -12), (-12, -12), (-12, 0), (0, 0)])
sketch24.addConstraint([
    Sketcher.Constraint("Horizontal", 0),
    Sketcher.Constraint("Vertical", 1),
    Sketcher.Constraint("Horizontal", 2),
    Sketcher.Constraint("Vertical", 3),
    Sketcher.Constraint("Coincident", 2, 2, -1, 1),
    Sketcher.Constraint("Equal", 2, 1),
    Sketcher.Constraint("DistanceX", 0, 2, 0, 1, 12.0),
])
pocket17 = doc.addObject("PartDesign::Pocket", "Pocket016")
body.addObject(pocket17)
pocket17.Profile = sketch24
pocket17.Type = "ThroughAll"
pocket17.Reversed = True
doc.recompute()

fillet = doc.addObject("PartDesign::Fillet", "Fillet")
body.addObject(fillet)
fillet.Base = (pocket17, edges_at(pocket17, [
    (12, -12, 0),
    (18, 0, 0),
    (0, 0, 0),
    (12, 6, 0),
]))
fillet.Radius = 1.5

sketch25 = doc.addObject("Sketcher::SketchObject", "Sketch024")
body.addObject(sketch25)
sketch25.AttachmentSupport = (doc.XY_Plane, [""])
sketch25.MapMode = "FlatFace"
sketch25.AttachmentOffset = App.Placement(App.Vector(0, 0, 3), App.Rotation())
add_polygon(sketch25, [(0, 0), (6, 0), (6, 12), (0, 12)])
sketch25.addConstraint([
    Sketcher.Constraint("Horizontal", 0),
    Sketcher.Constraint("Vertical", 1),
    Sketcher.Constraint("Horizontal", 2),
    Sketcher.Constraint("Vertical", 3),
    Sketcher.Constraint("Coincident", 3, 2, -1, 1),
    Sketcher.Constraint("DistanceX", 0, 1, 0, 2, 6.0),
    Sketcher.Constraint("DistanceY", 1, 1, 1, 2, 12.0),
])
pad8 = doc.addObject("PartDesign::Pad", "Pad007")
body.addObject(pad8)
pad8.Profile = sketch25
pad8.Length = 9

sketch26 = doc.addObject("Sketcher::SketchObject", "Sketch025")
body.addObject(sketch26)
sketch26.AttachmentSupport = (doc.XZ_Plane, [""])
sketch26.MapMode = "FlatFace"
sketch26.AttachmentOffset = App.Placement(App.Vector(0, 0, -12), App.Rotation())
add_polygon(sketch26, [(6, 12), (12, 12), (12, 3), (6, 3)])
sketch26.addConstraint([
    Sketcher.Constraint("Horizontal", 0),
    Sketcher.Constraint("Vertical", 1),
    Sketcher.Constraint("Horizontal", 2),
    Sketcher.Constraint("Vertical", 3),
    Sketcher.Constraint("DistanceX", 0, 1, 0, 2, 6.0),
    Sketcher.Constraint("DistanceY", 1, 2, 1, 1, 9.0),
    Sketcher.Constraint("DistanceX", -1, 1, 2, 2, 6.0),
    Sketcher.Constraint("DistanceY", -1, 1, 0, 2, 12.0),
])
pocket18 = doc.addObject("PartDesign::Pocket", "Pocket017")
body.addObject(pocket18)
pocket18.Profile = sketch26
pocket18.Length = 12
pocket18.Reversed = True

sketch27 = doc.addObject("Sketcher::SketchObject", "Sketch026")
body.addObject(sketch27)
sketch27.AttachmentSupport = (doc.YZ_Plane, [""])
sketch27.MapMode = "FlatFace"
sketch27.AttachmentOffset = App.Placement(App.Vector(0, 0, 6), App.Rotation())
sketch27.addGeometry(Part.Circle(App.Vector(6, 7.5, 0), App.Vector(0, 0, 1), 1.7), False)
sketch27.addConstraint([
    Sketcher.Constraint("Diameter", 0, 3.45),
    Sketcher.Constraint("DistanceX", -1, 1, 0, 3, 6.0),
    Sketcher.Constraint("DistanceY", -1, 1, 0, 3, 7.5),
])
pocket19 = doc.addObject("PartDesign::Pocket", "Pocket018")
body.addObject(pocket19)
pocket19.Profile = sketch27
pocket19.Length = 3

sketch28 = doc.addObject("Sketcher::SketchObject", "Sketch027")
body.addObject(sketch28)
sketch28.AttachmentSupport = (doc.YZ_Plane, [""])
sketch28.MapMode = "FlatFace"
add_polygon(sketch28, [(9.3, 7.5), (7.6, 4.7), (4.4, 4.7), (2.7, 7.5), (4.4, 10.3), (7.6, 10.3)])
sketch28.addConstraint([
    Sketcher.Constraint("Horizontal", 1),
    Sketcher.Constraint("Horizontal", 4),
    Sketcher.Constraint("Parallel", 0, 3),
    Sketcher.Constraint("Parallel", 2, 5),
    Sketcher.Constraint("Horizontal", 2, 2, 5, 2),
    Sketcher.Constraint("Vertical", 1, 2, 3, 2),
    Sketcher.Constraint("Vertical", 0, 2, 4, 2),
    Sketcher.Constraint("DistanceY", 1, 2, 3, 2, 5.7),
    Sketcher.Constraint("Angle", 0, Q("-120.0008 deg")),
    Sketcher.Constraint("DistanceY", -1, 1, 2, 2, 7.5),
    Sketcher.Constraint("DistanceX", 1, 2, 1, 1, 3.2908),
    Sketcher.Constraint("DistanceX", -1, 1, 2, 2, 2.709),
])
pocket20 = doc.addObject("PartDesign::Pocket", "Pocket019")
body.addObject(pocket20)
pocket20.Profile = sketch28
pocket20.Length = 3
pocket20.Reversed = True

doc.recompute()
